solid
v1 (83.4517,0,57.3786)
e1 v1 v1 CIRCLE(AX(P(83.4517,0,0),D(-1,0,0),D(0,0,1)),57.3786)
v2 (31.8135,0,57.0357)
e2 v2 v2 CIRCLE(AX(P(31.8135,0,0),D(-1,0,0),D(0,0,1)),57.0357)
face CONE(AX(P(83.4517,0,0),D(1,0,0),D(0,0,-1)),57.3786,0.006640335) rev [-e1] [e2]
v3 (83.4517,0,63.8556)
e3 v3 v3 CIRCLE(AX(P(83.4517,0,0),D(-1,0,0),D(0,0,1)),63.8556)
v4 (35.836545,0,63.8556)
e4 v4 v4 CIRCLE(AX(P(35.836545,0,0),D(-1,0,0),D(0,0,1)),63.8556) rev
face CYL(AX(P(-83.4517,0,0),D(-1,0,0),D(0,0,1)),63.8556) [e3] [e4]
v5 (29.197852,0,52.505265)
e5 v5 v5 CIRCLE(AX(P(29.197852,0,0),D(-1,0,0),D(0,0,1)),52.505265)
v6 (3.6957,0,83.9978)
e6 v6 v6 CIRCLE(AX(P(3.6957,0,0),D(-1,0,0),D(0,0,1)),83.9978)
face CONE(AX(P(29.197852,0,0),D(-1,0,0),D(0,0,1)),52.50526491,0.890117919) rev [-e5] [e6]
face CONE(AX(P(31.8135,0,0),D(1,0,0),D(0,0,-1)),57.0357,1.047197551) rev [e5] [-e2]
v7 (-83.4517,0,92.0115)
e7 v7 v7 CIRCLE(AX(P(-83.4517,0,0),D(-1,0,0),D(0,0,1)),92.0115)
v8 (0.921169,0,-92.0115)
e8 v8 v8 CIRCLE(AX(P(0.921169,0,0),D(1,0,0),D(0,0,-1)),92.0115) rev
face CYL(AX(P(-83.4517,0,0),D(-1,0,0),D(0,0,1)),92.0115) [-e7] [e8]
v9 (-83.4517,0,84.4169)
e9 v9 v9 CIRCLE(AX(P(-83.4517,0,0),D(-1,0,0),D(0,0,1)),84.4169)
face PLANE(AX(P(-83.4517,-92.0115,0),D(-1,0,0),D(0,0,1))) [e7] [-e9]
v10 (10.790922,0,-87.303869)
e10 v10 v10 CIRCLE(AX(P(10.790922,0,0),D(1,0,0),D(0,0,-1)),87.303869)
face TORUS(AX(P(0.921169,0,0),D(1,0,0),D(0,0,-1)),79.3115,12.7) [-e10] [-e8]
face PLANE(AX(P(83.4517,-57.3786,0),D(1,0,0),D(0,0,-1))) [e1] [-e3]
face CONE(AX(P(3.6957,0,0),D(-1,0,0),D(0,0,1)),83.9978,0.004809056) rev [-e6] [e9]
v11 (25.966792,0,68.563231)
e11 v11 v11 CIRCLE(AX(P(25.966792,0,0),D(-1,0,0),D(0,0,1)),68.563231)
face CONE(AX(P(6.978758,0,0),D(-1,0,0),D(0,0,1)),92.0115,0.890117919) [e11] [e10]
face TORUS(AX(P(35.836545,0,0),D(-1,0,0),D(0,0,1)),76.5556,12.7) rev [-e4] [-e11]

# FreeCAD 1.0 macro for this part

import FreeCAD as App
import Part
import Sketcher

V = App.Vector
Q = App.Units.Quantity


def edges_at(feature, points):
    """Names of the edges that pass closest to the given points."""
    edges = feature.Shape.Edges
    near = lambda p: min(range(len(edges)), key=lambda i: edges[i].distToShape(Part.Vertex(*p))[0])
    return sorted({f"Edge{near(p) + 1}" for p in points})

doc = App.newDocument("Part")
body = doc.addObject("PartDesign::Body", "Body")

# Sketch on XY plane
sketch1 = body.newObject("Sketcher::SketchObject", "Sketch")
sketch1.AttachmentSupport = (doc.getObject("XY_Plane"), [""])
sketch1.MapMode = "FlatFace"
sketch1.addGeometry([
    Part.LineSegment(V(29.197852, -52.505265, 0), V(3.6957, -83.9978, 0)),  # 0
    Part.LineSegment(V(3.6957, -83.9978, 0), V(-83.4517, -84.4169, 0)),  # 1
    Part.LineSegment(V(-83.4517, -84.4169, 0), V(-83.4517, -92.0115, 0)),  # 2
    Part.LineSegment(V(-83.4517, -92.0115, 0), V(6.978758, -92.0115, 0)),  # 3
    Part.LineSegment(V(6.978758, -92.0115, 0), V(29.778956, -63.8556, 0)),  # 4
    Part.LineSegment(V(29.778956, -63.8556, 0), V(83.4517, -63.8556, 0)),  # 5
    Part.LineSegment(V(83.4517, -63.8556, 0), V(83.4517, -57.3786, 0)),  # 6
    Part.LineSegment(V(83.4517, -57.3786, 0), V(31.8135, -57.0357, 0)),  # 7
    Part.LineSegment(V(31.8135, -57.0357, 0), V(29.197852, -52.505265, 0)),  # 8
], False)
sketch1.addConstraint([
    Sketcher.Constraint("Coincident", 0, 2, 1, 1),
    Sketcher.Constraint("Coincident", 1, 2, 2, 1),
    Sketcher.Constraint("Coincident", 2, 2, 3, 1),
    Sketcher.Constraint("Coincident", 3, 2, 4, 1),
    Sketcher.Constraint("Coincident", 4, 2, 5, 1),
    Sketcher.Constraint("Coincident", 5, 2, 6, 1),
    Sketcher.Constraint("Coincident", 6, 2, 7, 1),
    Sketcher.Constraint("Coincident", 7, 2, 8, 1),
    Sketcher.Constraint("Coincident", 8, 2, 0, 1),
    Sketcher.Constraint("Vertical", 2),
    Sketcher.Constraint("Horizontal", 3),
    Sketcher.Constraint("Horizontal", 5),
    Sketcher.Constraint("Vertical", 6),
    Sketcher.Constraint("Parallel", 0, 4),
    Sketcher.Constraint("Angle", 0, Q("-129 deg")),
    Sketcher.Constraint("Angle", 8, Q("120 deg")),
    Sketcher.Constraint("DistanceY", 2, 2, 2, 1, Q("0.299 in")),
    Sketcher.Constraint("DistanceY", 6, 1, 6, 2, Q("0.255 in")),
    Sketcher.Constraint("DistanceX", 0, 2, 5, 2, Q("3.14 in")),
    Sketcher.Constraint("DistanceX", 5, 1, 5, 2, Q("2.1131002 in")),
    Sketcher.Constraint("DistanceY", 0, 2, -1, 1, Q("3.307 in")),
    Sketcher.Constraint("DistanceY", 4, 2, -1, 1, Q("2.514 in")),
    Sketcher.Constraint("DistanceX", 1, 2, 0, 2, Q("3.431 in")),
    Sketcher.Constraint("DistanceX", 0, 2, 7, 2, Q("1.107 in")),
    Sketcher.Constraint("DistanceY", 3, 2, 7, 2, Q("1.377 in")),
    Sketcher.Constraint("DistanceX", -1, 1, 0, 2, Q("0.1455 in")),
    Sketcher.Constraint("DistanceY", 1, 2, -1, 1, Q("3.3235 in")),
])
revolution = body.newObject("PartDesign::Revolution", "Revolution")
revolution.Profile = sketch1
revolution.ReferenceAxis = (sketch1, ["H_Axis"])
revolution.Angle = 360
doc.recompute()

fillet = body.newObject("PartDesign::Fillet", "Fillet")
fillet.Base = (revolution, edges_at(revolution, [(6.979, 92.011, 0), (29.779, 63.856, 0)]))
fillet.Radius = Q("0.5 in")

doc.recompute()
